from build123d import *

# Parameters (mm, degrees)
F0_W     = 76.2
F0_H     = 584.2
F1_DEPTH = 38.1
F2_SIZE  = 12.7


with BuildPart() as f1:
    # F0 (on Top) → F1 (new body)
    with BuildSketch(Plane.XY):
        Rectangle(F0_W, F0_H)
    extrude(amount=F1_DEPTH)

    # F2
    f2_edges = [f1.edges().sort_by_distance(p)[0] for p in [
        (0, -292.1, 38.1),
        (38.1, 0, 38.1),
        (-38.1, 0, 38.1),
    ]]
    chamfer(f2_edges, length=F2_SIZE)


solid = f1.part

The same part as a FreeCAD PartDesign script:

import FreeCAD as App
import Part
import Sketcher
Q = App.Units.Quantity


def edges_at(feature, points):
    """Names of the edges that pass closest to the given points."""
    edges = feature.Shape.Edges
    near = lambda p: min(range(len(edges)), key=lambda i: edges[i].distToShape(Part.Vertex(*p))[0])
    return sorted({f"Edge{near(p) + 1}" for p in points})


def add_polygon(sketch, points):
    """Adds a closed chain of lines whose ends are joined by coincident constraints."""
    first, n = sketch.GeometryCount, len(points)
    for a, b in zip(points, points[1:] + points[:1]):
        sketch.addGeometry(Part.LineSegment(App.Vector(*a, 0), App.Vector(*b, 0)), False)
    for i in range(n):
        sketch.addConstraint(Sketcher.Constraint("Coincident", first + i, 2, first + (i + 1) % n, 1))

doc = App.newDocument("Part")
body = doc.addObject("PartDesign::Body", "Body")

# Sketch on XY plane
sketch1 = doc.addObject("Sketcher::SketchObject", "Sketch")
body.addObject(sketch1)
sketch1.AttachmentSupport = (doc.XY_Plane, [""])
sketch1.MapMode = "FlatFace"
add_polygon(sketch1, [(-38, 292), (-38, -292), (38, -292), (38, 292)])  # lines 0-3
sketch1.addConstraint(Sketcher.Constraint("Vertical", 0))
sketch1.addConstraint(Sketcher.Constraint("Horizontal", 1))
sketch1.addConstraint(Sketcher.Constraint("Vertical", 2))
sketch1.addConstraint(Sketcher.Constraint("Horizontal", 3))
sketch1.addConstraint(Sketcher.Constraint("Symmetric", 0, 2, 2, 2, -1, 1))
sketch1.addConstraint(Sketcher.Constraint("DistanceX", 1, 1, 1, 2, Q("3 in")))
sketch1.addConstraint(Sketcher.Constraint("DistanceY", 0, 2, 0, 1, Q("23 in")))
pad1 = doc.addObject("PartDesign::Pad", "Pad")
body.addObject(pad1)
pad1.Profile = sketch1
pad1.Length = Q("1.5 in")
doc.recompute()

chamfer = doc.addObject("PartDesign::Chamfer", "Chamfer")
body.addObject(chamfer)
chamfer.Base = (pad1, edges_at(pad1, [(0, -292.1, 38.1), (38.1, 0, 38.1), (-38.1, 0, 38.1)]))
chamfer.Size = Q("0.5 in")

doc.recompute()
